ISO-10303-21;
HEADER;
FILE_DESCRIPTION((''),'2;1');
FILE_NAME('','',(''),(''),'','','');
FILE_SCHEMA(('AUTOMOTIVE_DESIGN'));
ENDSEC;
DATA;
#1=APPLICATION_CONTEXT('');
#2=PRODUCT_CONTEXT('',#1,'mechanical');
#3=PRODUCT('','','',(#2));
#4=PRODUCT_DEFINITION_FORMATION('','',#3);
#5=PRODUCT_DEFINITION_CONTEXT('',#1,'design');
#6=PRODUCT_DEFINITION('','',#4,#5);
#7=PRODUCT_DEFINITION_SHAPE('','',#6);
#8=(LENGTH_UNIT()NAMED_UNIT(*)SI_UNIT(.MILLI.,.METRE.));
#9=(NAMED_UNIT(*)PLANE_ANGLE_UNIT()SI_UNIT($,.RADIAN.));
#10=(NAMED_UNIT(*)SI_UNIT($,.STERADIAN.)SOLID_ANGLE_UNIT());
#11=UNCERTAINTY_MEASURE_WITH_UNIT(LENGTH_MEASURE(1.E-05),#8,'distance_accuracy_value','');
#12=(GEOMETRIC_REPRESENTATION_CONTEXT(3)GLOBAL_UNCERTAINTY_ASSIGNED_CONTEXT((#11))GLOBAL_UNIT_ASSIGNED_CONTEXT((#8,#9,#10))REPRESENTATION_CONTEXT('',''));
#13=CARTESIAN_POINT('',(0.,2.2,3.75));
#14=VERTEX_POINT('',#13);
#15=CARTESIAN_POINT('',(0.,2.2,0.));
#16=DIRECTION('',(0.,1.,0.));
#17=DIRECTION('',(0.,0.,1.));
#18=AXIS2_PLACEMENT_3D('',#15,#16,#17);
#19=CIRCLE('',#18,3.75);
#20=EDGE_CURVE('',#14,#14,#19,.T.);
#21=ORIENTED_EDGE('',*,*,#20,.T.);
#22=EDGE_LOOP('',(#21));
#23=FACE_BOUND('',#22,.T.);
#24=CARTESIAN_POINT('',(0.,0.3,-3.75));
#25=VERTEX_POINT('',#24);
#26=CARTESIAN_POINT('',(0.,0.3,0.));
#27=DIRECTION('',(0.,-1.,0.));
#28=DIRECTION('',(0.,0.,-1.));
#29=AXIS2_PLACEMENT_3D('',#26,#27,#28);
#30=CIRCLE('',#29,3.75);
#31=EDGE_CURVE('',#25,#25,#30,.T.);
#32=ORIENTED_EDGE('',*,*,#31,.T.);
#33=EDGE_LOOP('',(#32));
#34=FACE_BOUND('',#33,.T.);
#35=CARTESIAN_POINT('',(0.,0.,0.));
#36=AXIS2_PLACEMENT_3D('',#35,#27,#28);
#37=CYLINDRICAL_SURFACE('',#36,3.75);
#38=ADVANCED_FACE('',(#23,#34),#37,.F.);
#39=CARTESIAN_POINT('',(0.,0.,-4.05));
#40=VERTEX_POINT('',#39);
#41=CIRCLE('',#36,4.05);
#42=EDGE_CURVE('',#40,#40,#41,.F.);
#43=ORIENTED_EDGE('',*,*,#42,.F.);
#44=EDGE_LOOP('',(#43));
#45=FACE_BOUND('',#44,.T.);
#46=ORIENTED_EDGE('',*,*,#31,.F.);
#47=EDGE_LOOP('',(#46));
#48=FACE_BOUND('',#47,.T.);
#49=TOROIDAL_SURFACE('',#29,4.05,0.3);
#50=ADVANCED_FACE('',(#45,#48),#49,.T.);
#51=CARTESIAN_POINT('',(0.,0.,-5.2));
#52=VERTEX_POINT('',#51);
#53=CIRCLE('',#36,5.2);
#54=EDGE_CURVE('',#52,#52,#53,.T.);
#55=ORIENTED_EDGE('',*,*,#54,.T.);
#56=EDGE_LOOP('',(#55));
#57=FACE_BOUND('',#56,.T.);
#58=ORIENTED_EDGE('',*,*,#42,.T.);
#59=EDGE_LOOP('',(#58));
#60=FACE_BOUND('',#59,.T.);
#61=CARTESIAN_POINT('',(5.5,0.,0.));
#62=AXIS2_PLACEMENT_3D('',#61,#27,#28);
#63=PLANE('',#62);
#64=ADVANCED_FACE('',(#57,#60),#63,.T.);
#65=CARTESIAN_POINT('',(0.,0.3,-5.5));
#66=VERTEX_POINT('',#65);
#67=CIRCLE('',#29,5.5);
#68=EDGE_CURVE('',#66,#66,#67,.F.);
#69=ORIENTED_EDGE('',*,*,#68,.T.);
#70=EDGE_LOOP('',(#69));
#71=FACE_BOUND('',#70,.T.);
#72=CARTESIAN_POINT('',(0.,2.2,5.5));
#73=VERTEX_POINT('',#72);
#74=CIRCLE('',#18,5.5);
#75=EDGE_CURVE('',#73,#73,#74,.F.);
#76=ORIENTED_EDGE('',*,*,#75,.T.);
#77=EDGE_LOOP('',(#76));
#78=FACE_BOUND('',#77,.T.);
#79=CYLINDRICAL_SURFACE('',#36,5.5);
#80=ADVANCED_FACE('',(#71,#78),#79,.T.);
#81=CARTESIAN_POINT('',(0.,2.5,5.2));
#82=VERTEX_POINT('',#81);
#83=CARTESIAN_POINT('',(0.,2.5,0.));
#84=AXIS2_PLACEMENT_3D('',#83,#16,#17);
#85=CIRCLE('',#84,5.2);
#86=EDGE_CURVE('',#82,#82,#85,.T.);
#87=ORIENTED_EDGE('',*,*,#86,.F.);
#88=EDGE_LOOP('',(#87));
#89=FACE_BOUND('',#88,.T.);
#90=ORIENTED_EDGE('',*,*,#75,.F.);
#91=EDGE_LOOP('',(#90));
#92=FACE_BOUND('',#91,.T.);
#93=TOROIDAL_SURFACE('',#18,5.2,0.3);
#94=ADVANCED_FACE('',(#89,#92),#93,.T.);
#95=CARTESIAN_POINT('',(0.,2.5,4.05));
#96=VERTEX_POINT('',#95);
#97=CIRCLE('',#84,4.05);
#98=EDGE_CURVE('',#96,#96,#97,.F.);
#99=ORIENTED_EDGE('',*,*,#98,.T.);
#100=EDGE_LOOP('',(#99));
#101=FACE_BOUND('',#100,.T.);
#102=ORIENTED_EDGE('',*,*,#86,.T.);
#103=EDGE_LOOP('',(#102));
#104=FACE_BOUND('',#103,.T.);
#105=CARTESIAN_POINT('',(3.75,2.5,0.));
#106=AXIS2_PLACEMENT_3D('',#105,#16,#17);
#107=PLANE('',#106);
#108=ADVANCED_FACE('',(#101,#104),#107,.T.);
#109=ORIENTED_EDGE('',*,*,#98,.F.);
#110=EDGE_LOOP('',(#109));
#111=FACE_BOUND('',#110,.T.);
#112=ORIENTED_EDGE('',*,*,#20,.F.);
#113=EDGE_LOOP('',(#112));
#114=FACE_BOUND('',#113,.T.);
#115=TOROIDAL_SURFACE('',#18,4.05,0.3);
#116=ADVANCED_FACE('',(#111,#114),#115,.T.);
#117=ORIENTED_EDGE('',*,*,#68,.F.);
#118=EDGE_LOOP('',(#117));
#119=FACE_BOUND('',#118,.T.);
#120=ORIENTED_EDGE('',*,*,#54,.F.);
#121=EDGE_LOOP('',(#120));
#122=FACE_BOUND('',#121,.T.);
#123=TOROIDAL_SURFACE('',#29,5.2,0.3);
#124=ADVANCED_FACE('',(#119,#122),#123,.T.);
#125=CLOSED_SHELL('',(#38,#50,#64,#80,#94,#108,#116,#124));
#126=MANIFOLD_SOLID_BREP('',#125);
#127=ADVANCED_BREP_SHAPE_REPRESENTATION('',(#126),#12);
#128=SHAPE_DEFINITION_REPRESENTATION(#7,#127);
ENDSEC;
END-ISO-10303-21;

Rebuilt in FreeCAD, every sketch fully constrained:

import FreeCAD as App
import Part
import Sketcher

V = App.Vector


def edges_at(feature, points):
    """Names of the edges that pass closest to the given points."""
    edges = feature.Shape.Edges
    near = lambda p: min(range(len(edges)), key=lambda i: edges[i].distToShape(Part.Vertex(*p))[0])
    return sorted({f"Edge{near(p) + 1}" for p in points})


def add_polygon(sketch, points):
    """Adds a closed chain of lines whose ends are joined by coincident constraints."""
    first, n = sketch.GeometryCount, len(points)
    for a, b in zip(points, points[1:] + points[:1]):
        sketch.addGeometry(Part.LineSegment(App.Vector(*a, 0), App.Vector(*b, 0)), False)
    for i in range(n):
        sketch.addConstraint(Sketcher.Constraint("Coincident", first + i, 2, first + (i + 1) % n, 1))

doc = App.newDocument("Part")
body = doc.addObject("PartDesign::Body", "Body")

# Sketch on XY plane
sketch1 = doc.addObject("Sketcher::SketchObject", "Sketch")
body.addObject(sketch1)
sketch1.AttachmentSupport = (doc.XY_Plane, [""])
sketch1.MapMode = "FlatFace"
add_polygon(sketch1, [(3.75, 2.5), (3.75, 0), (5.5, 0), (5.5, 2.5)])  # lines 0-3
sketch1.addConstraint(Sketcher.Constraint("Vertical", 0))
sketch1.addConstraint(Sketcher.Constraint("Horizontal", 1))
sketch1.addConstraint(Sketcher.Constraint("Vertical", 2))
sketch1.addConstraint(Sketcher.Constraint("Horizontal", 3))
sketch1.addConstraint(Sketcher.Constraint("PointOnObject", 0, 2, -1))
sketch1.addConstraint(Sketcher.Constraint("DistanceY", 0, 2, 0, 1, 2.5))
sketch1.addConstraint(Sketcher.Constraint("DistanceX", 1, 1, 1, 2, 1.75))
sketch1.addConstraint(Sketcher.Constraint("DistanceX", -1, 1, 1, 2, 5.5))
revolution = doc.addObject("PartDesign::Revolution", "Revolution")
body.addObject(revolution)
revolution.Profile = sketch1
revolution.ReferenceAxis = (sketch1, ["V_Axis"])
revolution.Angle = 360
doc.recompute()

fillet = doc.addObject("PartDesign::Fillet", "Fillet")
body.addObject(fillet)
fillet.Base = (revolution, edges_at(revolution, [
    (-5.5, 0, 0),
    (-5.5, 2.5, 0),
    (-3.75, 2.5, 0),
    (-3.75, 0, 0),
]))
fillet.Radius = 0.3

doc.recompute()
